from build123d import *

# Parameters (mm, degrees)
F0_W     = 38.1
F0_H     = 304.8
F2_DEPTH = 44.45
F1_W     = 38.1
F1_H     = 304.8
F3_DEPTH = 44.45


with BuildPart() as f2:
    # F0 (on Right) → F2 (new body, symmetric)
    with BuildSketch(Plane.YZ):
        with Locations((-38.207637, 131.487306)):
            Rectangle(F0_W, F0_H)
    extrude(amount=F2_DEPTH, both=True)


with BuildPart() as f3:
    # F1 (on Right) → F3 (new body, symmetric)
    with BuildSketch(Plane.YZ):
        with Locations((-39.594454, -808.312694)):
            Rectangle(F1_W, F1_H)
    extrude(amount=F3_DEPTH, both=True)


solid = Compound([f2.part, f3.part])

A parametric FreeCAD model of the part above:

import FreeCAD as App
import Part
import Sketcher
from FreeCAD import Vector
Q = App.Units.Quantity

doc = App.newDocument("Part")
params = doc.addObject("Spreadsheet::Sheet", "Params")
for row, (alias, value) in enumerate([
    ("sketch1_height", "12 in"),
    ("sketch1_width", "1.5 in"),
    ("pad1_length", "3.5 in"),
    ("sketch2_height", "12 in"),
    ("sketch2_width", "1.5 in"),
    ("pad2_length", "3.5 in"),
], start=1):
    params.set(f"A{row}", alias)
    params.set(f"B{row}", "=" + value)
    params.setAlias(f"B{row}", alias)

body = doc.addObject("PartDesign::Body", "Body")

# Sketch on YZ plane
sketch1 = body.newObject("Sketcher::SketchObject", "Sketch")
sketch1.AttachmentSupport = (doc.getObject("YZ_Plane"), [""])
sketch1.MapMode = "FlatFace"
sketch1.addGeometry(Part.LineSegment(Vector(-57.257637, 283.887306, 0), Vector(-57.257637, -20.912694, 0)), False)
sketch1.addGeometry(Part.LineSegment(Vector(-57.257637, -20.912694, 0), Vector(-19.157637, -20.912694, 0)), False)
sketch1.addGeometry(Part.LineSegment(Vector(-19.157637, -20.912694, 0), Vector(-19.157637, 283.887306, 0)), False)
sketch1.addGeometry(Part.LineSegment(Vector(-19.157637, 283.887306, 0), Vector(-57.257637, 283.887306, 0)), False)
sketch1.addConstraint(Sketcher.Constraint("Coincident", 0, 2, 1, 1))
sketch1.addConstraint(Sketcher.Constraint("Coincident", 1, 2, 2, 1))
sketch1.addConstraint(Sketcher.Constraint("Coincident", 2, 2, 3, 1))
sketch1.addConstraint(Sketcher.Constraint("Coincident", 3, 2, 0, 1))
sketch1.addConstraint(Sketcher.Constraint("Vertical", 0))
sketch1.addConstraint(Sketcher.Constraint("Horizontal", 1))
sketch1.addConstraint(Sketcher.Constraint("Vertical", 2))
sketch1.addConstraint(Sketcher.Constraint("Horizontal", 3))
sketch1.addConstraint(Sketcher.Constraint("DistanceY", 0, 2, 0, 1, Q("12 in")))
sketch1.addConstraint(Sketcher.Constraint("DistanceX", 1, 1, 1, 2, Q("1.5 in")))
sketch1.addConstraint(Sketcher.Constraint("DistanceX", 0, 2, -1, 1, 57.257637))
sketch1.addConstraint(Sketcher.Constraint("DistanceY", 0, 2, -1, 1, 20.912694))
sketch1.setExpression("Constraints[8]", "Params.sketch1_height")
sketch1.setExpression("Constraints[9]", "Params.sketch1_width")
pad1 = body.newObject("PartDesign::Pad", "Pad")
pad1.Profile = sketch1
pad1.setExpression("Length", "Params.pad1_length")
pad1.Midplane = True
body2 = doc.addObject("PartDesign::Body", "Body001")

# Sketch on YZ plane
sketch2 = body2.newObject("Sketcher::SketchObject", "Sketch001")
sketch2.AttachmentSupport = (doc.getObject("YZ_Plane001"), [""])
sketch2.MapMode = "FlatFace"
sketch2.addGeometry(Part.LineSegment(Vector(-58.644454, -655.912694, 0), Vector(-58.644454, -960.712694, 0)), False)
sketch2.addGeometry(Part.LineSegment(Vector(-58.644454, -960.712694, 0), Vector(-20.544454, -960.712694, 0)), False)
sketch2.addGeometry(Part.LineSegment(Vector(-20.544454, -960.712694, 0), Vector(-20.544454, -655.912694, 0)), False)
sketch2.addGeometry(Part.LineSegment(Vector(-20.544454, -655.912694, 0), Vector(-58.644454, -655.912694, 0)), False)
sketch2.addConstraint(Sketcher.Constraint("Coincident", 0, 2, 1, 1))
sketch2.addConstraint(Sketcher.Constraint("Coincident", 1, 2, 2, 1))
sketch2.addConstraint(Sketcher.Constraint("Coincident", 2, 2, 3, 1))
sketch2.addConstraint(Sketcher.Constraint("Coincident", 3, 2, 0, 1))
sketch2.addConstraint(Sketcher.Constraint("Vertical", 0))
sketch2.addConstraint(Sketcher.Constraint("Horizontal", 1))
sketch2.addConstraint(Sketcher.Constraint("Vertical", 2))
sketch2.addConstraint(Sketcher.Constraint("Horizontal", 3))
sketch2.addConstraint(Sketcher.Constraint("DistanceY", 0, 2, 0, 1, Q("12 in")))
sketch2.addConstraint(Sketcher.Constraint("DistanceX", 1, 1, 1, 2, Q("1.5 in")))
sketch2.addConstraint(Sketcher.Constraint("DistanceX", 0, 2, -1, 1, 58.644454))
sketch2.addConstraint(Sketcher.Constraint("DistanceY", 0, 2, -1, 1, 960.712694))
sketch2.setExpression("Constraints[8]", "Params.sketch2_height")
sketch2.setExpression("Constraints[9]", "Params.sketch2_width")
pad2 = body2.newObject("PartDesign::Pad", "Pad001")
pad2.Profile = sketch2
pad2.setExpression("Length", "Params.pad2_length")
pad2.Midplane = True

doc.recompute()
